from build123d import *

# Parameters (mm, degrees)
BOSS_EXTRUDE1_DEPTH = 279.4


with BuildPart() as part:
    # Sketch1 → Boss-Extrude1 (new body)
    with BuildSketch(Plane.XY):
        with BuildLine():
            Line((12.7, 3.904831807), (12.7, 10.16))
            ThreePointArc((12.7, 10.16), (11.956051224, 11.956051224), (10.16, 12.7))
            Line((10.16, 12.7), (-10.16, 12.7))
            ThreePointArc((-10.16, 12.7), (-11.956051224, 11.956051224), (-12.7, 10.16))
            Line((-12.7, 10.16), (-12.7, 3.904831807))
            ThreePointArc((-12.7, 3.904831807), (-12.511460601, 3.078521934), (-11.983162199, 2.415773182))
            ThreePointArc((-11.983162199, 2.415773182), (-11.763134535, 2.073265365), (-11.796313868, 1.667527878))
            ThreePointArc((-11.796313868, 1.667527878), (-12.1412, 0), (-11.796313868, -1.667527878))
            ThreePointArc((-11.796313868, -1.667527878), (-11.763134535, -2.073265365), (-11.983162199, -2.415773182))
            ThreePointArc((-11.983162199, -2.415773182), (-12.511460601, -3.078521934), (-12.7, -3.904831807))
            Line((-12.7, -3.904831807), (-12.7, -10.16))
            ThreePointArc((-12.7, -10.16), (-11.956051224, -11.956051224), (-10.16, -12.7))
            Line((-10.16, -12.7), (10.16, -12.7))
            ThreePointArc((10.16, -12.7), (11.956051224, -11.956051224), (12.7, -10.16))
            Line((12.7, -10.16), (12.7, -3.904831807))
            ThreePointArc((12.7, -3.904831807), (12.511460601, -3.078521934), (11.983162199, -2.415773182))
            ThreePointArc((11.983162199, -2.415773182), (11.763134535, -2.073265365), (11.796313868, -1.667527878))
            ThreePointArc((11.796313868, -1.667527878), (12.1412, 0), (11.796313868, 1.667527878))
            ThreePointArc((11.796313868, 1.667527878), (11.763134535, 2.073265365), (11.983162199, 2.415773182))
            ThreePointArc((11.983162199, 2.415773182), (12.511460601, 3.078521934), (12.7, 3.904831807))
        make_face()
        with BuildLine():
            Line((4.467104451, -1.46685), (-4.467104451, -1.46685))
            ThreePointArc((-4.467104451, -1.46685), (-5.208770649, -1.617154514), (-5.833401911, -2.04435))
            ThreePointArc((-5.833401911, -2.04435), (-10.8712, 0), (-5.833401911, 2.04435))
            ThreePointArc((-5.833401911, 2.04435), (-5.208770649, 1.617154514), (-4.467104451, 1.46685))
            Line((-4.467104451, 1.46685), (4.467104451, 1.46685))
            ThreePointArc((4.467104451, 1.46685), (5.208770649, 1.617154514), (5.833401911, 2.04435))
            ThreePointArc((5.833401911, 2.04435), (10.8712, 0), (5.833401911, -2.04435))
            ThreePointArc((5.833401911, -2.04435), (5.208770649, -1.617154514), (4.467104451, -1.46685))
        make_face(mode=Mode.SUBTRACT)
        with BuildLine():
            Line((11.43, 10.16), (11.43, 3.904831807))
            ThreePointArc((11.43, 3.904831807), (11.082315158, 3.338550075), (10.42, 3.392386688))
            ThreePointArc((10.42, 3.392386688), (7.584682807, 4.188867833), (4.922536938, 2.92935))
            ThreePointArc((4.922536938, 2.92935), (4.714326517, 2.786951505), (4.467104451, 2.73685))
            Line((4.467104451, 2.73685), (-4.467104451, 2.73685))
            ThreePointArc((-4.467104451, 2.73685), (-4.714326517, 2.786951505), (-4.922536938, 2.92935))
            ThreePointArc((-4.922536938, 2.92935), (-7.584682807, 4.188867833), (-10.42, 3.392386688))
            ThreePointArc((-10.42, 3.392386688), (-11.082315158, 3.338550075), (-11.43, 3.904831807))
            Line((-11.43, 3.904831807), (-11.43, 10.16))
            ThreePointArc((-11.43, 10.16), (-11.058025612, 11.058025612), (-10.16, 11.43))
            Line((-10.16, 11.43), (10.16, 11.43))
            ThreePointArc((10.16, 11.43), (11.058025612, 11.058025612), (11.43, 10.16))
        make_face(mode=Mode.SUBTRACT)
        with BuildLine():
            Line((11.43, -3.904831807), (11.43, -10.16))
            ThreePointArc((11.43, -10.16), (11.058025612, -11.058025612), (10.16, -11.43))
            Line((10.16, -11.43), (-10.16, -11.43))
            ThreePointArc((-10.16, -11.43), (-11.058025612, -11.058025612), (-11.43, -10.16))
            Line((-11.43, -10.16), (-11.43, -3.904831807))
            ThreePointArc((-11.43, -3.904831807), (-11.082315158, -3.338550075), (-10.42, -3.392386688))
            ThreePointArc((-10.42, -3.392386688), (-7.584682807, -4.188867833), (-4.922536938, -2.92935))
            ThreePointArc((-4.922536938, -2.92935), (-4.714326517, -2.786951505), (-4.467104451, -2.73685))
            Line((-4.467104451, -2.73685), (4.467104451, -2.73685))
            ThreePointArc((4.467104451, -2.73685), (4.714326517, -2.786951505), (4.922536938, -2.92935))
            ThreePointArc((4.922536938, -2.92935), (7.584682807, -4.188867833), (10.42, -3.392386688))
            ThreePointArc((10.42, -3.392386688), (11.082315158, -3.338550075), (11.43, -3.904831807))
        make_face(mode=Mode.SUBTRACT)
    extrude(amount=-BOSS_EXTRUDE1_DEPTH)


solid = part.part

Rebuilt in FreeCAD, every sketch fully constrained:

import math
import FreeCAD as App
import Part
import Sketcher

V = App.Vector
Q = App.Units.Quantity

doc = App.newDocument("Part")
body = doc.addObject("PartDesign::Body", "Body")

# Sketch on XY plane
sketch1 = doc.addObject("Sketcher::SketchObject", "Sketch")
body.addObject(sketch1)
sketch1.AttachmentSupport = (doc.XY_Plane, [""])
sketch1.MapMode = "FlatFace"
sketch1.addGeometry([
    Part.LineSegment(V(12.7, 3.9, 0), V(12.7, 10.16, 0)),  # 0
    Part.ArcOfCircle(Part.Circle(V(10.16, 10.16, 0), V(0, 0, 1), 2.54), math.radians(0), math.radians(90)),  # 1
    Part.LineSegment(V(10.16, 12.7, 0), V(-10.16, 12.7, 0)),  # 2
    Part.ArcOfCircle(Part.Circle(V(-10.16, 10.16, 0), V(0, 0, 1), 2.54), math.radians(90), math.radians(180)),  # 3
    Part.LineSegment(V(-12.7, 10.16, 0), V(-12.7, 3.9, 0)),  # 4
    Part.ArcOfCircle(Part.Circle(V(-10.8, 3.9, 0), V(0, 0, 1), 1.9), math.radians(180), math.radians(231)),  # 5
    Part.ArcOfCircle(Part.Circle(V(-12.38, 1.92, 0), V(0, 0, 1), 0.64), math.radians(-23), math.radians(51)),  # 6
    Part.ArcOfCircle(Part.Circle(V(-7.94, 0, 0), V(0, 0, 1), 4.2), math.radians(157), math.radians(203)),  # 7
    Part.ArcOfCircle(Part.Circle(V(-12.38, -1.92, 0), V(0, 0, 1), 0.64), math.radians(-51), math.radians(23)),  # 8
    Part.ArcOfCircle(Part.Circle(V(-10.8, -3.9, 0), V(0, 0, 1), 1.9), math.radians(129), math.radians(180)),  # 9
    Part.LineSegment(V(-12.7, -3.9, 0), V(-12.7, -10.16, 0)),  # 10
    Part.ArcOfCircle(Part.Circle(V(-10.16, -10.16, 0), V(0, 0, 1), 2.54), math.radians(-180), math.radians(-90)),  # 11
    Part.LineSegment(V(-10.16, -12.7, 0), V(10.16, -12.7, 0)),  # 12
    Part.ArcOfCircle(Part.Circle(V(10.16, -10.16, 0), V(0, 0, 1), 2.54), math.radians(-90), math.radians(0)),  # 13
    Part.LineSegment(V(12.7, -10.16, 0), V(12.7, -3.9, 0)),  # 14
    Part.ArcOfCircle(Part.Circle(V(10.8, -3.9, 0), V(0, 0, 1), 1.9), math.radians(0), math.radians(51)),  # 15
    Part.ArcOfCircle(Part.Circle(V(12.38, -1.92, 0), V(0, 0, 1), 0.64), math.radians(157), math.radians(231)),  # 16
    Part.ArcOfCircle(Part.Circle(V(7.94, 0, 0), V(0, 0, 1), 4.2), math.radians(-23), math.radians(23)),  # 17
    Part.ArcOfCircle(Part.Circle(V(12.38, 1.92, 0), V(0, 0, 1), 0.64), math.radians(129), math.radians(203)),  # 18
    Part.ArcOfCircle(Part.Circle(V(10.8, 3.9, 0), V(0, 0, 1), 1.9), math.radians(-51), math.radians(0)),  # 19
    Part.ArcOfCircle(Part.Circle(V(10.79, -3.9, 0), V(0, 0, 1), 0.64), math.radians(0), math.radians(126)),  # 20
    Part.LineSegment(V(11.43, -3.9, 0), V(11.43, -10.16, 0)),  # 21
    Part.ArcOfCircle(Part.Circle(V(10.16, -10.16, 0), V(0, 0, 1), 1.27), math.radians(-90), math.radians(0)),  # 22
    Part.LineSegment(V(10.16, -11.43, 0), V(-10.16, -11.43, 0)),  # 23
    Part.ArcOfCircle(Part.Circle(V(-10.16, -10.16, 0), V(0, 0, 1), 1.27), math.radians(180), math.radians(270)),  # 24
    Part.LineSegment(V(-11.43, -10.16, 0), V(-11.43, -3.9, 0)),  # 25
    Part.ArcOfCircle(Part.Circle(V(-10.79, -3.9, 0), V(0, 0, 1), 0.64), math.radians(54), math.radians(180)),  # 26
    Part.ArcOfCircle(Part.Circle(V(-7.94, 0, 0), V(0, 0, 1), 4.2), math.radians(-126), math.radians(-44)),  # 27
    Part.ArcOfCircle(Part.Circle(V(-4.47, -3.37, 0), V(0, 0, 1), 0.64), math.radians(90), math.radians(136)),  # 28
    Part.LineSegment(V(-4.47, -2.74, 0), V(4.47, -2.74, 0)),  # 29
    Part.ArcOfCircle(Part.Circle(V(4.47, -3.37, 0), V(0, 0, 1), 0.64), math.radians(44), math.radians(90)),  # 30
    Part.ArcOfCircle(Part.Circle(V(7.94, 0, 0), V(0, 0, 1), 4.2), math.radians(-136), math.radians(-54)),  # 31
    Part.ArcOfCircle(Part.Circle(V(4.47, -3.37, 0), V(0, 0, 1), 1.91), math.radians(44), math.radians(90)),  # 32
    Part.LineSegment(V(4.47, -1.47, 0), V(-4.47, -1.47, 0)),  # 33
    Part.ArcOfCircle(Part.Circle(V(-4.47, -3.37, 0), V(0, 0, 1), 1.91), math.radians(90), math.radians(136)),  # 34
    Part.ArcOfCircle(Part.Circle(V(-7.94, 0, 0), V(0, 0, 1), 2.93), math.radians(44), math.radians(316)),  # 35
    Part.ArcOfCircle(Part.Circle(V(-4.47, 3.37, 0), V(0, 0, 1), 1.91), math.radians(-136), math.radians(-90)),  # 36
    Part.LineSegment(V(-4.47, 1.47, 0), V(4.47, 1.47, 0)),  # 37
    Part.ArcOfCircle(Part.Circle(V(4.47, 3.37, 0), V(0, 0, 1), 1.91), math.radians(-90), math.radians(-44)),  # 38
    Part.ArcOfCircle(Part.Circle(V(7.94, 0, 0), V(0, 0, 1), 2.93), math.radians(-136), math.radians(136)),  # 39
    Part.ArcOfCircle(Part.Circle(V(10.16, 10.16, 0), V(0, 0, 1), 1.27), math.radians(0), math.radians(90)),  # 40
    Part.LineSegment(V(11.43, 10.16, 0), V(11.43, 3.9, 0)),  # 41
    Part.ArcOfCircle(Part.Circle(V(10.79, 3.9, 0), V(0, 0, 1), 0.64), math.radians(-126), math.radians(0)),  # 42
    Part.ArcOfCircle(Part.Circle(V(7.94, 0, 0), V(0, 0, 1), 4.2), math.radians(54), math.radians(136)),  # 43
    Part.ArcOfCircle(Part.Circle(V(4.47, 3.37, 0), V(0, 0, 1), 0.64), math.radians(-90), math.radians(-44)),  # 44
    Part.LineSegment(V(4.47, 2.74, 0), V(-4.47, 2.74, 0)),  # 45
    Part.ArcOfCircle(Part.Circle(V(-4.47, 3.37, 0), V(0, 0, 1), 0.64), math.radians(-136), math.radians(-90)),  # 46
    Part.ArcOfCircle(Part.Circle(V(-7.94, 0, 0), V(0, 0, 1), 4.2), math.radians(44), math.radians(126)),  # 47
    Part.ArcOfCircle(Part.Circle(V(-10.79, 3.9, 0), V(0, 0, 1), 0.64), math.radians(180), math.radians(306)),  # 48
    Part.LineSegment(V(-11.43, 3.9, 0), V(-11.43, 10.16, 0)),  # 49
    Part.ArcOfCircle(Part.Circle(V(-10.16, 10.16, 0), V(0, 0, 1), 1.27), math.radians(90), math.radians(180)),  # 50
    Part.LineSegment(V(-10.16, 11.43, 0), V(10.16, 11.43, 0)),  # 51
], False)
sketch1.addConstraint([
    Sketcher.Constraint("Tangent", 0, 2, 1, 1),
    Sketcher.Constraint("Tangent", 1, 2, 2, 1),
    Sketcher.Constraint("Tangent", 2, 2, 3, 1),
    Sketcher.Constraint("Tangent", 3, 2, 4, 1),
    Sketcher.Constraint("Tangent", 4, 2, 5, 1),
    Sketcher.Constraint("Tangent", 5, 2, 6, 2),
    Sketcher.Constraint("Tangent", 6, 1, 7, 1),
    Sketcher.Constraint("Tangent", 7, 2, 8, 2),
    Sketcher.Constraint("Tangent", 8, 1, 9, 1),
    Sketcher.Constraint("Tangent", 9, 2, 10, 1),
    Sketcher.Constraint("Tangent", 10, 2, 11, 1),
    Sketcher.Constraint("Tangent", 11, 2, 12, 1),
    Sketcher.Constraint("Tangent", 12, 2, 13, 1),
    Sketcher.Constraint("Tangent", 13, 2, 14, 1),
    Sketcher.Constraint("Tangent", 14, 2, 15, 1),
    Sketcher.Constraint("Tangent", 15, 2, 16, 2),
    Sketcher.Constraint("Tangent", 16, 1, 17, 1),
    Sketcher.Constraint("Tangent", 17, 2, 18, 2),
    Sketcher.Constraint("Tangent", 18, 1, 19, 1),
    Sketcher.Constraint("Tangent", 19, 2, 0, 1),
    Sketcher.Constraint("Tangent", 20, 1, 21, 1),
    Sketcher.Constraint("Tangent", 21, 2, 22, 2),
    Sketcher.Constraint("Tangent", 22, 1, 23, 1),
    Sketcher.Constraint("Tangent", 23, 2, 24, 2),
    Sketcher.Constraint("Tangent", 24, 1, 25, 1),
    Sketcher.Constraint("Tangent", 25, 2, 26, 2),
    Sketcher.Constraint("Tangent", 26, 1, 27, 1),
    Sketcher.Constraint("Tangent", 27, 2, 28, 2),
    Sketcher.Constraint("Tangent", 28, 1, 29, 1),
    Sketcher.Constraint("Tangent", 29, 2, 30, 2),
    Sketcher.Constraint("Tangent", 30, 1, 31, 1),
    Sketcher.Constraint("Tangent", 31, 2, 20, 2),
    Sketcher.Constraint("Tangent", 32, 2, 33, 1),
    Sketcher.Constraint("Tangent", 33, 2, 34, 1),
    Sketcher.Constraint("Tangent", 34, 2, 35, 2),
    Sketcher.Constraint("Tangent", 35, 1, 36, 1),
    Sketcher.Constraint("Tangent", 36, 2, 37, 1),
    Sketcher.Constraint("Tangent", 37, 2, 38, 1),
    Sketcher.Constraint("Tangent", 38, 2, 39, 2),
    Sketcher.Constraint("Tangent", 39, 1, 32, 1),
    Sketcher.Constraint("Tangent", 40, 1, 41, 1),
    Sketcher.Constraint("Tangent", 41, 2, 42, 2),
    Sketcher.Constraint("Tangent", 42, 1, 43, 1),
    Sketcher.Constraint("Tangent", 43, 2, 44, 2),
    Sketcher.Constraint("Tangent", 44, 1, 45, 1),
    Sketcher.Constraint("Tangent", 45, 2, 46, 2),
    Sketcher.Constraint("Tangent", 46, 1, 47, 1),
    Sketcher.Constraint("Tangent", 47, 2, 48, 2),
    Sketcher.Constraint("Tangent", 48, 1, 49, 1),
    Sketcher.Constraint("Tangent", 49, 2, 50, 2),
    Sketcher.Constraint("Tangent", 50, 1, 51, 1),
    Sketcher.Constraint("Tangent", 51, 2, 40, 2),
    Sketcher.Constraint("Vertical", 0),
    Sketcher.Constraint("Horizontal", 2),
    Sketcher.Constraint("Vertical", 4),
    Sketcher.Constraint("Vertical", 10),
    Sketcher.Constraint("Horizontal", 12),
    Sketcher.Constraint("Vertical", 14),
    Sketcher.Constraint("Vertical", 21),
    Sketcher.Constraint("Horizontal", 23),
    Sketcher.Constraint("Vertical", 25),
    Sketcher.Constraint("Horizontal", 29),
    Sketcher.Constraint("Horizontal", 33),
    Sketcher.Constraint("Horizontal", 37),
    Sketcher.Constraint("Vertical", 41),
    Sketcher.Constraint("Horizontal", 45),
    Sketcher.Constraint("Vertical", 49),
    Sketcher.Constraint("Horizontal", 51),
    Sketcher.Constraint("Coincident", 20, 3, 15, 3),
    Sketcher.Constraint("Coincident", 22, 3, 13, 3),
    Sketcher.Constraint("Coincident", 24, 3, 11, 3),
    Sketcher.Constraint("Coincident", 26, 3, 9, 3),
    Sketcher.Constraint("Coincident", 27, 3, 7, 3),
    Sketcher.Constraint("Coincident", 31, 3, 17, 3),
    Sketcher.Constraint("Coincident", 32, 3, 30, 3),
    Sketcher.Constraint("Coincident", 34, 3, 28, 3),
    Sketcher.Constraint("Coincident", 35, 3, 7, 3),
    Sketcher.Constraint("Coincident", 39, 3, 17, 3),
    Sketcher.Constraint("Coincident", 40, 3, 1, 3),
    Sketcher.Constraint("Coincident", 42, 3, 19, 3),
    Sketcher.Constraint("Coincident", 43, 3, 17, 3),
    Sketcher.Constraint("Coincident", 44, 3, 38, 3),
    Sketcher.Constraint("Coincident", 46, 3, 36, 3),
    Sketcher.Constraint("Coincident", 47, 3, 7, 3),
    Sketcher.Constraint("Coincident", 48, 3, 5, 3),
    Sketcher.Constraint("Coincident", 50, 3, 3, 3),
    Sketcher.Constraint("Equal", 1, 3),
    Sketcher.Constraint("Equal", 6, 8),
    Sketcher.Constraint("Equal", 5, 9),
    Sketcher.Constraint("Equal", 3, 11),
    Sketcher.Constraint("Equal", 11, 13),
    Sketcher.Constraint("Equal", 9, 15),
    Sketcher.Constraint("Equal", 8, 16),
    Sketcher.Constraint("Equal", 7, 17),
    Sketcher.Constraint("Equal", 16, 18),
    Sketcher.Constraint("Equal", 15, 19),
    Sketcher.Constraint("Equal", 18, 20),
    Sketcher.Constraint("Equal", 17, 27),
    Sketcher.Constraint("Equal", 26, 28),
    Sketcher.Constraint("Equal", 28, 30),
    Sketcher.Constraint("Equal", 27, 31),
    Sketcher.Constraint("Equal", 19, 32),
    Sketcher.Constraint("Equal", 34, 36),
    Sketcher.Constraint("Equal", 36, 38),
    Sketcher.Constraint("Equal", 24, 40),
    Sketcher.Constraint("Equal", 31, 43),
    Sketcher.Constraint("Symmetric", 1, 3, 11, 3, -1, 1),
    Sketcher.Constraint("Symmetric", 5, 3, 15, 3, -1, 1),
    Sketcher.Constraint("Symmetric", 30, 3, 36, 3, -1, 1),
    Sketcher.Constraint("Symmetric", 9, 3, 15, 3, -2),
    Sketcher.Constraint("Radius", 1, Q("0.1 in")),
    Sketcher.Constraint("Radius", 22, Q("0.05 in")),
    Sketcher.Constraint("DistanceX", 2, 2, 2, 1, Q("0.8 in")),
    Sketcher.Constraint("Radius", 5, Q("0.075 in")),
    Sketcher.Constraint("DistanceY", -1, 1, 1, 3, Q("0.4 in")),
    Sketcher.Constraint("Radius", 7, Q("0.1655 in")),
    Sketcher.Constraint("DistanceX", 7, 3, -1, 1, Q("0.3125 in")),
    Sketcher.Constraint("DistanceX", 29, 1, 29, 2, 8.934209),
])
pad1 = doc.addObject("PartDesign::Pad", "Pad")
body.addObject(pad1)
pad1.Profile = sketch1
pad1.Length = Q("11 in")
pad1.Reversed = True

doc.recompute()
